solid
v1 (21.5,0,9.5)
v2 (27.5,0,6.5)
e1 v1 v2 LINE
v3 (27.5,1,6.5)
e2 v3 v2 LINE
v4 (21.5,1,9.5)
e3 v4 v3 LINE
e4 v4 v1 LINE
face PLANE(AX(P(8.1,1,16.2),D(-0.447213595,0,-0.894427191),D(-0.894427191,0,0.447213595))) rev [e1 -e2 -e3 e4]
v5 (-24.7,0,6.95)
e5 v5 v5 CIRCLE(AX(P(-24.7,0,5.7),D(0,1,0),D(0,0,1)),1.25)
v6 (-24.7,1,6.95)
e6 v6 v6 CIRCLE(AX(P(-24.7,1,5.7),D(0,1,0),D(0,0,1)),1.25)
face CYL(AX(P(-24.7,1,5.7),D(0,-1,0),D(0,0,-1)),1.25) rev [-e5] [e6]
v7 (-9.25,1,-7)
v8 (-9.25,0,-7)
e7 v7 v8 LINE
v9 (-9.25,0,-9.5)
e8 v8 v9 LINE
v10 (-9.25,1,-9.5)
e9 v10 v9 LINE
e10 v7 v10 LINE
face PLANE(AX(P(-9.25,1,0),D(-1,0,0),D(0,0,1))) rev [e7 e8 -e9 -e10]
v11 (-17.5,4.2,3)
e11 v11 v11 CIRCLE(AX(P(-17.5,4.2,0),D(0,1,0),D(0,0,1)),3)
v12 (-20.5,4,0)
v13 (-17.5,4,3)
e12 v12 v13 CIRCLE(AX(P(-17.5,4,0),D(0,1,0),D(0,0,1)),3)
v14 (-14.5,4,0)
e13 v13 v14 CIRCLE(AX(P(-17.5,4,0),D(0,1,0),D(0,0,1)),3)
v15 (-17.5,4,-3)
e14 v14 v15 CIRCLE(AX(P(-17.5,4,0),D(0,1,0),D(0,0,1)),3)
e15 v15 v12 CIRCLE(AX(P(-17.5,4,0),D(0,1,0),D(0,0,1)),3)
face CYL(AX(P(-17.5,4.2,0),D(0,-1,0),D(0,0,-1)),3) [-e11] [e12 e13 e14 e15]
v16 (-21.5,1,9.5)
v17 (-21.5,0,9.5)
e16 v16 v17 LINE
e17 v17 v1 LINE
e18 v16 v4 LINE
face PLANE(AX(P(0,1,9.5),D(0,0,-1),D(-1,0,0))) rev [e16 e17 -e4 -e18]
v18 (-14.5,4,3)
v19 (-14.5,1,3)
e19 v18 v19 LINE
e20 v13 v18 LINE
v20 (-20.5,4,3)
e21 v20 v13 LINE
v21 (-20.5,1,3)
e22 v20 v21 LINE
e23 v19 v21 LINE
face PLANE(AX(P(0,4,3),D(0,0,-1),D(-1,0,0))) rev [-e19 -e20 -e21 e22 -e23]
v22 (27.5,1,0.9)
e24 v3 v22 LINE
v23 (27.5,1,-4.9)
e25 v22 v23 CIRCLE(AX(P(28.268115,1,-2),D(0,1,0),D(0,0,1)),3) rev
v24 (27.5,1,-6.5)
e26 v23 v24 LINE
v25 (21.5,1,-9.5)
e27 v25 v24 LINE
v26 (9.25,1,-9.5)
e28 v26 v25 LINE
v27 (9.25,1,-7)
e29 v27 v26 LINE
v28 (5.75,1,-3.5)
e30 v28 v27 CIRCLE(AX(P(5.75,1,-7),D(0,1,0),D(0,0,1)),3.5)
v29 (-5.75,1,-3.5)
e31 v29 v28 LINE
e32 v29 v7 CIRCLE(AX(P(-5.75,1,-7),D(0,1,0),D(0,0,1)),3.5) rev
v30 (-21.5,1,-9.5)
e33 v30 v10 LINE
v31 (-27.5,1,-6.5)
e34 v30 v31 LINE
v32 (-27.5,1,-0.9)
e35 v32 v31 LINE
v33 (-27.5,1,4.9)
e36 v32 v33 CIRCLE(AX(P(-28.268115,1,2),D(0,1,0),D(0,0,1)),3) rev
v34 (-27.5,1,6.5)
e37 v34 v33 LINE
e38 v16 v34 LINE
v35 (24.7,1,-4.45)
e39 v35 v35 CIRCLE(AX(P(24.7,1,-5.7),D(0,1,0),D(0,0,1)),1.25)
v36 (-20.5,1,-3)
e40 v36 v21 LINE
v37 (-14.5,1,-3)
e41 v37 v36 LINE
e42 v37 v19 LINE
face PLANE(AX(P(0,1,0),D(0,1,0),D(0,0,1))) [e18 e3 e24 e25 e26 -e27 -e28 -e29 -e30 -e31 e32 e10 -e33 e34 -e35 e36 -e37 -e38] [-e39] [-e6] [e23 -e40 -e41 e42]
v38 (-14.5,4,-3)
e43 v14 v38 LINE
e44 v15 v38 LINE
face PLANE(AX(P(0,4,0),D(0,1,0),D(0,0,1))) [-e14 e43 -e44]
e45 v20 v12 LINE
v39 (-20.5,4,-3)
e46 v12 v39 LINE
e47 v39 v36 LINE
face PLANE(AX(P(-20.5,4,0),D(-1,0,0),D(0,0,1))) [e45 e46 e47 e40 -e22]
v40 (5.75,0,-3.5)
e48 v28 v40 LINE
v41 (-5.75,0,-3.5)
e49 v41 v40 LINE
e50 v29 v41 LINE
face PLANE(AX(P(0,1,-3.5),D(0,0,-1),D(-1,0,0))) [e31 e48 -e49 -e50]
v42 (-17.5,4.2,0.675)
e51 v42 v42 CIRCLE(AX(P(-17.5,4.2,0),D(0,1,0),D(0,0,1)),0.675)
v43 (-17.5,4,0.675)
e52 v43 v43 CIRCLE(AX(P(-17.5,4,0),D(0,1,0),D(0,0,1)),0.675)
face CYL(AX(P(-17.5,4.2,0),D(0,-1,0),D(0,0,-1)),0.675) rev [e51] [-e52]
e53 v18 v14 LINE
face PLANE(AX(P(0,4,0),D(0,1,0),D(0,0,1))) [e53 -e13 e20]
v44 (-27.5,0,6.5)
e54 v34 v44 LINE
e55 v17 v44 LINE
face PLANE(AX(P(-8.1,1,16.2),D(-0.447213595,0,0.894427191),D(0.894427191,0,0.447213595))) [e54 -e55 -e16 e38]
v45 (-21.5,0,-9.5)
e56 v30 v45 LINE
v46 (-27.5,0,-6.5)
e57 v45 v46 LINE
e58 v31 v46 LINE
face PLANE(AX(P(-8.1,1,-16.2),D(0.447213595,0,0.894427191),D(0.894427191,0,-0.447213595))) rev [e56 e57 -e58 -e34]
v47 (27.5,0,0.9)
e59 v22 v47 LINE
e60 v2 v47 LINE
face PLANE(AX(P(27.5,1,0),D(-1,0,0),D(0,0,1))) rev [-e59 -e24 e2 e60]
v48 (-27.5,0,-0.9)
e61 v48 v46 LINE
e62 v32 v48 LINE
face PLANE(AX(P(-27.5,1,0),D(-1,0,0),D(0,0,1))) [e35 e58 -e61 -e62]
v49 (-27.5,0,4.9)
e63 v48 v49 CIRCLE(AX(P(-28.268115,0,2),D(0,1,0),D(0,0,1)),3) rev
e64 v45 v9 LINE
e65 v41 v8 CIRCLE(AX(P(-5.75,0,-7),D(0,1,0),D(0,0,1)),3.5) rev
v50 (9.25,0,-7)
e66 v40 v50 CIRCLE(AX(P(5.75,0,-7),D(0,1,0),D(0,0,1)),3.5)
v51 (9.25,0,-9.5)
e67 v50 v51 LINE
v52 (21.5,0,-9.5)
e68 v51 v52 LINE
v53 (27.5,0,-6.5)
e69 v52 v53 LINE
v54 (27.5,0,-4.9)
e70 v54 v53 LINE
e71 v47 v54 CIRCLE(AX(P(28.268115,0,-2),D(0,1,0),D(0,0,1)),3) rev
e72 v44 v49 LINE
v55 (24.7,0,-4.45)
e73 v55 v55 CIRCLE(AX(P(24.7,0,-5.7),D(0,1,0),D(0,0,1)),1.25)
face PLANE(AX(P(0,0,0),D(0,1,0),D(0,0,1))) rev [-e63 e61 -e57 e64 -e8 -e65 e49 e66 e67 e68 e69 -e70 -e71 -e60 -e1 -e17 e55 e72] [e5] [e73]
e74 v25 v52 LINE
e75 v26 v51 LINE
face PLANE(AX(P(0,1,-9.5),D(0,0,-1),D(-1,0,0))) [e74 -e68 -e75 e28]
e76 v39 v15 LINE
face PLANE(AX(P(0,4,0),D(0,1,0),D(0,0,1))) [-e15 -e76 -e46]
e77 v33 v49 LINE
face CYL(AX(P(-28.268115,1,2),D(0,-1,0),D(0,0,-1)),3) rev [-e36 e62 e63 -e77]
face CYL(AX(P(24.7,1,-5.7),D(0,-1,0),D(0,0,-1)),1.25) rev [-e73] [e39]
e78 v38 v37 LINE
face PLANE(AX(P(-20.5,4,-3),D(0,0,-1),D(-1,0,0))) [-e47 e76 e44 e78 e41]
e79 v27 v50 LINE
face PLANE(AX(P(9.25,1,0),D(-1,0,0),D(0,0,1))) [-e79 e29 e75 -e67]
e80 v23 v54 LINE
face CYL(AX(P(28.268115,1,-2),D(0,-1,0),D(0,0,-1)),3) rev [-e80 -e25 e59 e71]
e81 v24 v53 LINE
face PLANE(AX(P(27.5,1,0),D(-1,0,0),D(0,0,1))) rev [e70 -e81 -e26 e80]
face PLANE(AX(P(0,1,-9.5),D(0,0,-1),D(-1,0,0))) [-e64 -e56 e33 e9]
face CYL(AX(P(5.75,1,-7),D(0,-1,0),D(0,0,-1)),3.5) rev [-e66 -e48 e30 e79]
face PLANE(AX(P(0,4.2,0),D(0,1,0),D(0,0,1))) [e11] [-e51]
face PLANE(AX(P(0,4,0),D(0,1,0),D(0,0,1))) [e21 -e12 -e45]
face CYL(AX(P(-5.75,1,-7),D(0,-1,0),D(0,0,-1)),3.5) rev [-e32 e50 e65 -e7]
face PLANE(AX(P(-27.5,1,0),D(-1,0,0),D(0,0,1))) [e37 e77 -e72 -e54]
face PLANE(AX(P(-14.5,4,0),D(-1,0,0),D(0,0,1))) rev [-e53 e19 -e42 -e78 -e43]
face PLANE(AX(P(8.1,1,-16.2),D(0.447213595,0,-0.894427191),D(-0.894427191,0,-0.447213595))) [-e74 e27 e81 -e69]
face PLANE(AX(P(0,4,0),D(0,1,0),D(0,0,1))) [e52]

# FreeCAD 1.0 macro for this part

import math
import FreeCAD as App
import Part
import Sketcher
Q = App.Units.Quantity


def add_polygon(sketch, points):
    """Adds a closed chain of lines whose ends are joined by coincident constraints."""
    first, n = sketch.GeometryCount, len(points)
    for a, b in zip(points, points[1:] + points[:1]):
        sketch.addGeometry(Part.LineSegment(App.Vector(*a, 0), App.Vector(*b, 0)), False)
    for i in range(n):
        sketch.addConstraint(Sketcher.Constraint("Coincident", first + i, 2, first + (i + 1) % n, 1))

doc = App.newDocument("Part")
body = doc.addObject("PartDesign::Body", "Body")

# Sketch on XZ plane
sketch1 = body.newObject("Sketcher::SketchObject", "Sketch")
sketch1.AttachmentSupport = (doc.getObject("XZ_Plane"), [""])
sketch1.MapMode = "FlatFace"
sketch1.addGeometry(Part.LineSegment(App.Vector(5.75, -3.5, 0), App.Vector(-5.75, -3.5, 0)), False)
sketch1.addGeometry(Part.ArcOfCircle(Part.Circle(App.Vector(-5.75, -7, 0), App.Vector(0, 0, 1), 3.5), math.radians(90), math.radians(180)), False)
sketch1.addGeometry(Part.LineSegment(App.Vector(-9.25, -7, 0), App.Vector(-9.25, -9.5, 0)), False)
sketch1.addGeometry(Part.LineSegment(App.Vector(-9.25, -9.5, 0), App.Vector(-21.5, -9.5, 0)), False)
sketch1.addGeometry(Part.LineSegment(App.Vector(-21.5, -9.5, 0), App.Vector(-27.5, -6.5, 0)), False)
sketch1.addGeometry(Part.LineSegment(App.Vector(-27.5, -6.5, 0), App.Vector(-27.5, -0.9, 0)), False)
sketch1.addGeometry(Part.ArcOfCircle(Part.Circle(App.Vector(-28.268115, 2, 0), App.Vector(0, 0, 1), 3), math.radians(-75.164888), math.radians(75.164888)), False)
sketch1.addGeometry(Part.LineSegment(App.Vector(-27.5, 4.9, 0), App.Vector(-27.5, 6.5, 0)), False)
sketch1.addGeometry(Part.LineSegment(App.Vector(-27.5, 6.5, 0), App.Vector(-21.5, 9.5, 0)), False)
sketch1.addGeometry(Part.LineSegment(App.Vector(-21.5, 9.5, 0), App.Vector(21.5, 9.5, 0)), False)
sketch1.addGeometry(Part.LineSegment(App.Vector(21.5, 9.5, 0), App.Vector(27.5, 6.5, 0)), False)
sketch1.addGeometry(Part.LineSegment(App.Vector(27.5, 6.5, 0), App.Vector(27.5, 0.9, 0)), False)
sketch1.addGeometry(Part.ArcOfCircle(Part.Circle(App.Vector(28.268115, -2, 0), App.Vector(0, 0, 1), 3), math.radians(104.835112), math.radians(255.164888)), False)
sketch1.addGeometry(Part.LineSegment(App.Vector(27.5, -4.9, 0), App.Vector(27.5, -6.5, 0)), False)
sketch1.addGeometry(Part.LineSegment(App.Vector(27.5, -6.5, 0), App.Vector(21.5, -9.5, 0)), False)
sketch1.addGeometry(Part.LineSegment(App.Vector(21.5, -9.5, 0), App.Vector(9.25, -9.5, 0)), False)
sketch1.addGeometry(Part.LineSegment(App.Vector(9.25, -9.5, 0), App.Vector(9.25, -7, 0)), False)
sketch1.addGeometry(Part.ArcOfCircle(Part.Circle(App.Vector(5.75, -7, 0), App.Vector(0, 0, 1), 3.5), math.radians(0), math.radians(90)), False)
sketch1.addGeometry(Part.Circle(App.Vector(-24.7, 5.7, 0), App.Vector(0, 0, 1), 1.25), False)
sketch1.addGeometry(Part.Circle(App.Vector(24.7, -5.7, 0), App.Vector(0, 0, 1), 1.25), False)
sketch1.addConstraint(Sketcher.Constraint("Tangent", 0, 2, 1, 1))
sketch1.addConstraint(Sketcher.Constraint("Tangent", 1, 2, 2, 1))
sketch1.addConstraint(Sketcher.Constraint("Coincident", 2, 2, 3, 1))
sketch1.addConstraint(Sketcher.Constraint("Coincident", 3, 2, 4, 1))
sketch1.addConstraint(Sketcher.Constraint("Coincident", 4, 2, 5, 1))
sketch1.addConstraint(Sketcher.Constraint("Coincident", 5, 2, 6, 1))
sketch1.addConstraint(Sketcher.Constraint("Coincident", 6, 2, 7, 1))
sketch1.addConstraint(Sketcher.Constraint("Coincident", 7, 2, 8, 1))
sketch1.addConstraint(Sketcher.Constraint("Coincident", 8, 2, 9, 1))
sketch1.addConstraint(Sketcher.Constraint("Coincident", 9, 2, 10, 1))
sketch1.addConstraint(Sketcher.Constraint("Coincident", 10, 2, 11, 1))
sketch1.addConstraint(Sketcher.Constraint("Coincident", 11, 2, 12, 1))
sketch1.addConstraint(Sketcher.Constraint("Coincident", 12, 2, 13, 1))
sketch1.addConstraint(Sketcher.Constraint("Coincident", 13, 2, 14, 1))
sketch1.addConstraint(Sketcher.Constraint("Coincident", 14, 2, 15, 1))
sketch1.addConstraint(Sketcher.Constraint("Coincident", 15, 2, 16, 1))
sketch1.addConstraint(Sketcher.Constraint("Tangent", 16, 2, 17, 1))
sketch1.addConstraint(Sketcher.Constraint("Tangent", 17, 2, 0, 1))
sketch1.addConstraint(Sketcher.Constraint("Horizontal", 0))
sketch1.addConstraint(Sketcher.Constraint("Vertical", 2))
sketch1.addConstraint(Sketcher.Constraint("Horizontal", 3))
sketch1.addConstraint(Sketcher.Constraint("Vertical", 5))
sketch1.addConstraint(Sketcher.Constraint("Vertical", 7))
sketch1.addConstraint(Sketcher.Constraint("Horizontal", 9))
sketch1.addConstraint(Sketcher.Constraint("Vertical", 11))
sketch1.addConstraint(Sketcher.Constraint("Vertical", 13))
sketch1.addConstraint(Sketcher.Constraint("Horizontal", 15))
sketch1.addConstraint(Sketcher.Constraint("Vertical", 16))
sketch1.addConstraint(Sketcher.Constraint("Equal", 6, 12))
sketch1.addConstraint(Sketcher.Constraint("Equal", 1, 17))
sketch1.addConstraint(Sketcher.Constraint("Equal", 18, 19))
sketch1.addConstraint(Sketcher.Constraint("Symmetric", 6, 3, 12, 3, -1, 1))
sketch1.addConstraint(Sketcher.Constraint("Symmetric", 18, 3, 19, 3, -1, 1))
sketch1.addConstraint(Sketcher.Constraint("Symmetric", 3, 2, 9, 2, -1, 1))
sketch1.addConstraint(Sketcher.Constraint("Symmetric", 4, 2, 10, 2, -1, 1))
sketch1.addConstraint(Sketcher.Constraint("Symmetric", 7, 2, 13, 2, -1, 1))
sketch1.addConstraint(Sketcher.Constraint("Symmetric", 8, 2, 14, 2, -1, 1))
sketch1.addConstraint(Sketcher.Constraint("Symmetric", 7, 2, 10, 2, -2))
sketch1.addConstraint(Sketcher.Constraint("Vertical", 3, 2, 8, 2))
sketch1.addConstraint(Sketcher.Constraint("Equal", 3, 15))
sketch1.addConstraint(Sketcher.Constraint("Radius", 6, Q("3 mm")))
sketch1.addConstraint(Sketcher.Constraint("Diameter", 18, Q("2.5 mm")))
sketch1.addConstraint(Sketcher.Constraint("Radius", 1, Q("3.5 mm")))
sketch1.addConstraint(Sketcher.Constraint("DistanceX", 9, 1, 9, 2, Q("43 mm")))
sketch1.addConstraint(Sketcher.Constraint("DistanceX", 0, 2, 0, 1, Q("11.5 mm")))
sketch1.addConstraint(Sketcher.Constraint("DistanceY", 2, 2, 2, 1, Q("2.5 mm")))
sketch1.addConstraint(Sketcher.Constraint("DistanceY", 5, 1, 5, 2, Q("5.6 mm")))
sketch1.addConstraint(Sketcher.Constraint("DistanceY", 7, 1, 7, 2, Q("1.6 mm")))
sketch1.addConstraint(Sketcher.Constraint("DistanceY", 1, 3, -1, 1, Q("7 mm")))
sketch1.addConstraint(Sketcher.Constraint("DistanceX", 4, 2, 3, 2, Q("6 mm")))
sketch1.addConstraint(Sketcher.Constraint("DistanceY", 3, 2, 4, 2, Q("3 mm")))
sketch1.addConstraint(Sketcher.Constraint("DistanceX", 18, 3, -1, 1, Q("24.7 mm")))
sketch1.addConstraint(Sketcher.Constraint("DistanceY", -1, 1, 18, 3, Q("5.7 mm")))
pad1 = body.newObject("PartDesign::Pad", "Pad")
pad1.Profile = sketch1
pad1.Length = 1
pad1.Reversed = True

# Sketch on XZ plane
sketch2 = body.newObject("Sketcher::SketchObject", "Sketch001")
sketch2.AttachmentSupport = (doc.getObject("XZ_Plane"), [""])
sketch2.MapMode = "FlatFace"
add_polygon(sketch2, [(-20.5, -3), (-20.5, 3), (-14.5, 3), (-14.5, -3)])  # lines 0-3
sketch2.addConstraint(Sketcher.Constraint("Vertical", 0))
sketch2.addConstraint(Sketcher.Constraint("Horizontal", 1))
sketch2.addConstraint(Sketcher.Constraint("Vertical", 2))
sketch2.addConstraint(Sketcher.Constraint("Horizontal", 3))
sketch2.addConstraint(Sketcher.Constraint("Equal", 3, 0))
sketch2.addConstraint(Sketcher.Constraint("DistanceX", 1, 1, 1, 2, Q("6 mm")))
sketch2.addConstraint(Sketcher.Constraint("DistanceY", -1, 1, 0, 2, Q("3 mm")))
sketch2.addConstraint(Sketcher.Constraint("DistanceX", 0, 2, -1, 1, Q("20.5 mm")))
pad2 = body.newObject("PartDesign::Pad", "Pad001")
pad2.Profile = sketch2
pad2.Length = 4
pad2.Reversed = True

# Sketch on XZ plane
sketch3 = body.newObject("Sketcher::SketchObject", "Sketch002")
sketch3.AttachmentSupport = (doc.getObject("XZ_Plane"), [""])
sketch3.MapMode = "FlatFace"
sketch3.AttachmentOffset = App.Placement(App.Vector(0, 0, -4), App.Rotation())
sketch3.addGeometry(Part.Circle(App.Vector(-17.5, 0, 0), App.Vector(0, 0, 1), 3), False)
sketch3.addGeometry(Part.Circle(App.Vector(-17.5, 0, 0), App.Vector(0, 0, 1), 0.675), False)
sketch3.addConstraint(Sketcher.Constraint("Coincident", 1, 3, 0, 3))
sketch3.addConstraint(Sketcher.Constraint("PointOnObject", 0, 3, -1))
sketch3.addConstraint(Sketcher.Constraint("Diameter", 0, Q("6 mm")))
sketch3.addConstraint(Sketcher.Constraint("Diameter", 1, Q("1.35 mm")))
sketch3.addConstraint(Sketcher.Constraint("DistanceX", 0, 3, -1, 1, Q("17.5 mm")))
pad3 = body.newObject("PartDesign::Pad", "Pad002")
pad3.Profile = sketch3
pad3.Length = 0.2
pad3.Reversed = True

doc.recompute()
